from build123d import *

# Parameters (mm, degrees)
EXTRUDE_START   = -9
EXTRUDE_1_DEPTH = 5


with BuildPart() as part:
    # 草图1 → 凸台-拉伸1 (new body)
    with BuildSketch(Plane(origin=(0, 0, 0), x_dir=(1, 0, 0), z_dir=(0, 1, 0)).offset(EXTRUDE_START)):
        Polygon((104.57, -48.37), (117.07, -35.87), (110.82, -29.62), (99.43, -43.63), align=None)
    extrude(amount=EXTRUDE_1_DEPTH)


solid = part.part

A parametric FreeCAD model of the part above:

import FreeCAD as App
import Part
import Sketcher

V = App.Vector
Q = App.Units.Quantity


def add_polygon(sketch, points):
    """Adds a closed chain of lines whose ends are joined by coincident constraints."""
    first, n = sketch.GeometryCount, len(points)
    for a, b in zip(points, points[1:] + points[:1]):
        sketch.addGeometry(Part.LineSegment(App.Vector(*a, 0), App.Vector(*b, 0)), False)
    for i in range(n):
        sketch.addConstraint(Sketcher.Constraint("Coincident", first + i, 2, first + (i + 1) % n, 1))

doc = App.newDocument("Part")
body = doc.addObject("PartDesign::Body", "Body")

# Sketch on XZ plane
sketch1 = body.newObject("Sketcher::SketchObject", "Sketch")
sketch1.AttachmentSupport = (doc.getObject("XZ_Plane"), [""])
sketch1.MapMode = "FlatFace"
sketch1.AttachmentOffset = App.Placement(V(0, 0, 9), App.Rotation())
add_polygon(sketch1, [(104.57, 48.37), (117.07, 35.87), (110.82, 29.62), (99.43, 43.63)])  # lines 0-3
sketch1.addConstraint(Sketcher.Constraint("Perpendicular", 0, 1))
sketch1.addConstraint(Sketcher.Constraint("Angle", 0, Q("-45 deg")))
sketch1.addConstraint(Sketcher.Constraint("DistanceX", 3, 2, 0, 2, 12.5))
sketch1.addConstraint(Sketcher.Constraint("DistanceX", -1, 1, 0, 2, 117.07))
sketch1.addConstraint(Sketcher.Constraint("DistanceY", -1, 1, 0, 2, 35.87))
sketch1.addConstraint(Sketcher.Constraint("DistanceX", -1, 1, 1, 2, 110.82))
sketch1.addConstraint(Sketcher.Constraint("DistanceX", -1, 1, 2, 2, 99.43))
sketch1.addConstraint(Sketcher.Constraint("DistanceY", -1, 1, 2, 2, 43.63))
pad1 = body.newObject("PartDesign::Pad", "Pad")
pad1.Profile = sketch1
pad1.Length = 5
pad1.Reversed = True

doc.recompute()
